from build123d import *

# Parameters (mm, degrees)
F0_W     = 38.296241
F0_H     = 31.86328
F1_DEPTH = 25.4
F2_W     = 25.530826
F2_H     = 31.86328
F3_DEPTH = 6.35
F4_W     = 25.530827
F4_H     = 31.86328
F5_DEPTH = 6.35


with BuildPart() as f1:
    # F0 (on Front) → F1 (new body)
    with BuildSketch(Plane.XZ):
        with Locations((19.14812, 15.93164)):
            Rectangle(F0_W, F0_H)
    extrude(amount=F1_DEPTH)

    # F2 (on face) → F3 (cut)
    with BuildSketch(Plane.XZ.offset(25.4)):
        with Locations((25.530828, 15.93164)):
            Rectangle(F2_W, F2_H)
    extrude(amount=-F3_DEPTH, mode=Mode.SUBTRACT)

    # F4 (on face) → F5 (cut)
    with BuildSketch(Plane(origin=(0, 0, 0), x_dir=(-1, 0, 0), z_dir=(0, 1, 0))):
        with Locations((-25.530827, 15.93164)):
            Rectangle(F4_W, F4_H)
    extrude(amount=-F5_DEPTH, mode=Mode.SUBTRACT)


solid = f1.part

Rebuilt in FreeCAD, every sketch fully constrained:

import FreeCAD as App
import Part
import Sketcher
from FreeCAD import Vector
Q = App.Units.Quantity

doc = App.newDocument("Part")
body = doc.addObject("PartDesign::Body", "Body")

# Sketch on XZ plane
sketch1 = body.newObject("Sketcher::SketchObject", "Sketch")
sketch1.AttachmentSupport = (doc.getObject("XZ_Plane"), [""])
sketch1.MapMode = "FlatFace"
sketch1.addGeometry([
    Part.LineSegment(Vector(0, 32, 0), Vector(0, 0, 0)),
    Part.LineSegment(Vector(0, 0, 0), Vector(38, 0, 0)),
    Part.LineSegment(Vector(38, 0, 0), Vector(38, 32, 0)),
    Part.LineSegment(Vector(38, 32, 0), Vector(0, 32, 0)),
], False)
sketch1.addConstraint([
    Sketcher.Constraint("Coincident", 0, 2, 1, 1),
    Sketcher.Constraint("Coincident", 1, 2, 2, 1),
    Sketcher.Constraint("Coincident", 2, 2, 3, 1),
    Sketcher.Constraint("Coincident", 3, 2, 0, 1),
    Sketcher.Constraint("Vertical", 0),
    Sketcher.Constraint("Horizontal", 1),
    Sketcher.Constraint("Vertical", 2),
    Sketcher.Constraint("Horizontal", 3),
    Sketcher.Constraint("Coincident", 0, 2, -1, 1),
    Sketcher.Constraint("DistanceX", 1, 1, 1, 2, 38.296241),
    Sketcher.Constraint("DistanceY", 0, 2, 0, 1, 31.86328),
])
pad1 = body.newObject("PartDesign::Pad", "Pad")
pad1.Profile = sketch1
pad1.Length = Q("1 in")

# Sketch on XZ plane
sketch2 = body.newObject("Sketcher::SketchObject", "Sketch001")
sketch2.AttachmentSupport = (doc.getObject("XZ_Plane"), [""])
sketch2.MapMode = "FlatFace"
sketch2.AttachmentOffset = App.Placement(Vector(0, 0, 1 * 25.4), App.Rotation())
sketch2.addGeometry([
    Part.LineSegment(Vector(13, 32, 0), Vector(13, 0, 0)),
    Part.LineSegment(Vector(13, 0, 0), Vector(38, 0, 0)),
    Part.LineSegment(Vector(38, 0, 0), Vector(38, 32, 0)),
    Part.LineSegment(Vector(38, 32, 0), Vector(13, 32, 0)),
], False)
sketch2.addConstraint([
    Sketcher.Constraint("Coincident", 0, 2, 1, 1),
    Sketcher.Constraint("Coincident", 1, 2, 2, 1),
    Sketcher.Constraint("Coincident", 2, 2, 3, 1),
    Sketcher.Constraint("Coincident", 3, 2, 0, 1),
    Sketcher.Constraint("Vertical", 0),
    Sketcher.Constraint("Horizontal", 1),
    Sketcher.Constraint("Vertical", 2),
    Sketcher.Constraint("Horizontal", 3),
    Sketcher.Constraint("PointOnObject", 0, 2, -1),
    Sketcher.Constraint("DistanceY", 0, 2, 0, 1, 31.86328),
    Sketcher.Constraint("DistanceX", 1, 1, 1, 2, 25.530826),
    Sketcher.Constraint("DistanceX", -1, 1, 1, 2, 38.296241),
])
pocket1 = body.newObject("PartDesign::Pocket", "Pocket")
pocket1.Profile = sketch2
pocket1.Length = Q("0.25 in")

# Sketch on XZ plane
sketch3 = body.newObject("Sketcher::SketchObject", "Sketch002")
sketch3.AttachmentSupport = (doc.getObject("XZ_Plane"), [""])
sketch3.MapMode = "FlatFace"
sketch3.addGeometry([
    Part.LineSegment(Vector(38, 32, 0), Vector(38, 0, 0)),
    Part.LineSegment(Vector(38, 0, 0), Vector(13, 0, 0)),
    Part.LineSegment(Vector(13, 0, 0), Vector(13, 32, 0)),
    Part.LineSegment(Vector(13, 32, 0), Vector(38, 32, 0)),
], False)
sketch3.addConstraint([
    Sketcher.Constraint("Coincident", 0, 2, 1, 1),
    Sketcher.Constraint("Coincident", 1, 2, 2, 1),
    Sketcher.Constraint("Coincident", 2, 2, 3, 1),
    Sketcher.Constraint("Coincident", 3, 2, 0, 1),
    Sketcher.Constraint("Vertical", 0),
    Sketcher.Constraint("Horizontal", 1),
    Sketcher.Constraint("Vertical", 2),
    Sketcher.Constraint("Horizontal", 3),
    Sketcher.Constraint("PointOnObject", 0, 2, -1),
    Sketcher.Constraint("DistanceY", 0, 2, 0, 1, 31.86328),
    Sketcher.Constraint("DistanceX", 1, 2, 1, 1, 25.530827),
    Sketcher.Constraint("DistanceX", -1, 1, 0, 2, 38.296241),
])
pocket2 = body.newObject("PartDesign::Pocket", "Pocket001")
pocket2.Profile = sketch3
pocket2.Length = Q("0.25 in")
pocket2.Reversed = True

doc.recompute()
